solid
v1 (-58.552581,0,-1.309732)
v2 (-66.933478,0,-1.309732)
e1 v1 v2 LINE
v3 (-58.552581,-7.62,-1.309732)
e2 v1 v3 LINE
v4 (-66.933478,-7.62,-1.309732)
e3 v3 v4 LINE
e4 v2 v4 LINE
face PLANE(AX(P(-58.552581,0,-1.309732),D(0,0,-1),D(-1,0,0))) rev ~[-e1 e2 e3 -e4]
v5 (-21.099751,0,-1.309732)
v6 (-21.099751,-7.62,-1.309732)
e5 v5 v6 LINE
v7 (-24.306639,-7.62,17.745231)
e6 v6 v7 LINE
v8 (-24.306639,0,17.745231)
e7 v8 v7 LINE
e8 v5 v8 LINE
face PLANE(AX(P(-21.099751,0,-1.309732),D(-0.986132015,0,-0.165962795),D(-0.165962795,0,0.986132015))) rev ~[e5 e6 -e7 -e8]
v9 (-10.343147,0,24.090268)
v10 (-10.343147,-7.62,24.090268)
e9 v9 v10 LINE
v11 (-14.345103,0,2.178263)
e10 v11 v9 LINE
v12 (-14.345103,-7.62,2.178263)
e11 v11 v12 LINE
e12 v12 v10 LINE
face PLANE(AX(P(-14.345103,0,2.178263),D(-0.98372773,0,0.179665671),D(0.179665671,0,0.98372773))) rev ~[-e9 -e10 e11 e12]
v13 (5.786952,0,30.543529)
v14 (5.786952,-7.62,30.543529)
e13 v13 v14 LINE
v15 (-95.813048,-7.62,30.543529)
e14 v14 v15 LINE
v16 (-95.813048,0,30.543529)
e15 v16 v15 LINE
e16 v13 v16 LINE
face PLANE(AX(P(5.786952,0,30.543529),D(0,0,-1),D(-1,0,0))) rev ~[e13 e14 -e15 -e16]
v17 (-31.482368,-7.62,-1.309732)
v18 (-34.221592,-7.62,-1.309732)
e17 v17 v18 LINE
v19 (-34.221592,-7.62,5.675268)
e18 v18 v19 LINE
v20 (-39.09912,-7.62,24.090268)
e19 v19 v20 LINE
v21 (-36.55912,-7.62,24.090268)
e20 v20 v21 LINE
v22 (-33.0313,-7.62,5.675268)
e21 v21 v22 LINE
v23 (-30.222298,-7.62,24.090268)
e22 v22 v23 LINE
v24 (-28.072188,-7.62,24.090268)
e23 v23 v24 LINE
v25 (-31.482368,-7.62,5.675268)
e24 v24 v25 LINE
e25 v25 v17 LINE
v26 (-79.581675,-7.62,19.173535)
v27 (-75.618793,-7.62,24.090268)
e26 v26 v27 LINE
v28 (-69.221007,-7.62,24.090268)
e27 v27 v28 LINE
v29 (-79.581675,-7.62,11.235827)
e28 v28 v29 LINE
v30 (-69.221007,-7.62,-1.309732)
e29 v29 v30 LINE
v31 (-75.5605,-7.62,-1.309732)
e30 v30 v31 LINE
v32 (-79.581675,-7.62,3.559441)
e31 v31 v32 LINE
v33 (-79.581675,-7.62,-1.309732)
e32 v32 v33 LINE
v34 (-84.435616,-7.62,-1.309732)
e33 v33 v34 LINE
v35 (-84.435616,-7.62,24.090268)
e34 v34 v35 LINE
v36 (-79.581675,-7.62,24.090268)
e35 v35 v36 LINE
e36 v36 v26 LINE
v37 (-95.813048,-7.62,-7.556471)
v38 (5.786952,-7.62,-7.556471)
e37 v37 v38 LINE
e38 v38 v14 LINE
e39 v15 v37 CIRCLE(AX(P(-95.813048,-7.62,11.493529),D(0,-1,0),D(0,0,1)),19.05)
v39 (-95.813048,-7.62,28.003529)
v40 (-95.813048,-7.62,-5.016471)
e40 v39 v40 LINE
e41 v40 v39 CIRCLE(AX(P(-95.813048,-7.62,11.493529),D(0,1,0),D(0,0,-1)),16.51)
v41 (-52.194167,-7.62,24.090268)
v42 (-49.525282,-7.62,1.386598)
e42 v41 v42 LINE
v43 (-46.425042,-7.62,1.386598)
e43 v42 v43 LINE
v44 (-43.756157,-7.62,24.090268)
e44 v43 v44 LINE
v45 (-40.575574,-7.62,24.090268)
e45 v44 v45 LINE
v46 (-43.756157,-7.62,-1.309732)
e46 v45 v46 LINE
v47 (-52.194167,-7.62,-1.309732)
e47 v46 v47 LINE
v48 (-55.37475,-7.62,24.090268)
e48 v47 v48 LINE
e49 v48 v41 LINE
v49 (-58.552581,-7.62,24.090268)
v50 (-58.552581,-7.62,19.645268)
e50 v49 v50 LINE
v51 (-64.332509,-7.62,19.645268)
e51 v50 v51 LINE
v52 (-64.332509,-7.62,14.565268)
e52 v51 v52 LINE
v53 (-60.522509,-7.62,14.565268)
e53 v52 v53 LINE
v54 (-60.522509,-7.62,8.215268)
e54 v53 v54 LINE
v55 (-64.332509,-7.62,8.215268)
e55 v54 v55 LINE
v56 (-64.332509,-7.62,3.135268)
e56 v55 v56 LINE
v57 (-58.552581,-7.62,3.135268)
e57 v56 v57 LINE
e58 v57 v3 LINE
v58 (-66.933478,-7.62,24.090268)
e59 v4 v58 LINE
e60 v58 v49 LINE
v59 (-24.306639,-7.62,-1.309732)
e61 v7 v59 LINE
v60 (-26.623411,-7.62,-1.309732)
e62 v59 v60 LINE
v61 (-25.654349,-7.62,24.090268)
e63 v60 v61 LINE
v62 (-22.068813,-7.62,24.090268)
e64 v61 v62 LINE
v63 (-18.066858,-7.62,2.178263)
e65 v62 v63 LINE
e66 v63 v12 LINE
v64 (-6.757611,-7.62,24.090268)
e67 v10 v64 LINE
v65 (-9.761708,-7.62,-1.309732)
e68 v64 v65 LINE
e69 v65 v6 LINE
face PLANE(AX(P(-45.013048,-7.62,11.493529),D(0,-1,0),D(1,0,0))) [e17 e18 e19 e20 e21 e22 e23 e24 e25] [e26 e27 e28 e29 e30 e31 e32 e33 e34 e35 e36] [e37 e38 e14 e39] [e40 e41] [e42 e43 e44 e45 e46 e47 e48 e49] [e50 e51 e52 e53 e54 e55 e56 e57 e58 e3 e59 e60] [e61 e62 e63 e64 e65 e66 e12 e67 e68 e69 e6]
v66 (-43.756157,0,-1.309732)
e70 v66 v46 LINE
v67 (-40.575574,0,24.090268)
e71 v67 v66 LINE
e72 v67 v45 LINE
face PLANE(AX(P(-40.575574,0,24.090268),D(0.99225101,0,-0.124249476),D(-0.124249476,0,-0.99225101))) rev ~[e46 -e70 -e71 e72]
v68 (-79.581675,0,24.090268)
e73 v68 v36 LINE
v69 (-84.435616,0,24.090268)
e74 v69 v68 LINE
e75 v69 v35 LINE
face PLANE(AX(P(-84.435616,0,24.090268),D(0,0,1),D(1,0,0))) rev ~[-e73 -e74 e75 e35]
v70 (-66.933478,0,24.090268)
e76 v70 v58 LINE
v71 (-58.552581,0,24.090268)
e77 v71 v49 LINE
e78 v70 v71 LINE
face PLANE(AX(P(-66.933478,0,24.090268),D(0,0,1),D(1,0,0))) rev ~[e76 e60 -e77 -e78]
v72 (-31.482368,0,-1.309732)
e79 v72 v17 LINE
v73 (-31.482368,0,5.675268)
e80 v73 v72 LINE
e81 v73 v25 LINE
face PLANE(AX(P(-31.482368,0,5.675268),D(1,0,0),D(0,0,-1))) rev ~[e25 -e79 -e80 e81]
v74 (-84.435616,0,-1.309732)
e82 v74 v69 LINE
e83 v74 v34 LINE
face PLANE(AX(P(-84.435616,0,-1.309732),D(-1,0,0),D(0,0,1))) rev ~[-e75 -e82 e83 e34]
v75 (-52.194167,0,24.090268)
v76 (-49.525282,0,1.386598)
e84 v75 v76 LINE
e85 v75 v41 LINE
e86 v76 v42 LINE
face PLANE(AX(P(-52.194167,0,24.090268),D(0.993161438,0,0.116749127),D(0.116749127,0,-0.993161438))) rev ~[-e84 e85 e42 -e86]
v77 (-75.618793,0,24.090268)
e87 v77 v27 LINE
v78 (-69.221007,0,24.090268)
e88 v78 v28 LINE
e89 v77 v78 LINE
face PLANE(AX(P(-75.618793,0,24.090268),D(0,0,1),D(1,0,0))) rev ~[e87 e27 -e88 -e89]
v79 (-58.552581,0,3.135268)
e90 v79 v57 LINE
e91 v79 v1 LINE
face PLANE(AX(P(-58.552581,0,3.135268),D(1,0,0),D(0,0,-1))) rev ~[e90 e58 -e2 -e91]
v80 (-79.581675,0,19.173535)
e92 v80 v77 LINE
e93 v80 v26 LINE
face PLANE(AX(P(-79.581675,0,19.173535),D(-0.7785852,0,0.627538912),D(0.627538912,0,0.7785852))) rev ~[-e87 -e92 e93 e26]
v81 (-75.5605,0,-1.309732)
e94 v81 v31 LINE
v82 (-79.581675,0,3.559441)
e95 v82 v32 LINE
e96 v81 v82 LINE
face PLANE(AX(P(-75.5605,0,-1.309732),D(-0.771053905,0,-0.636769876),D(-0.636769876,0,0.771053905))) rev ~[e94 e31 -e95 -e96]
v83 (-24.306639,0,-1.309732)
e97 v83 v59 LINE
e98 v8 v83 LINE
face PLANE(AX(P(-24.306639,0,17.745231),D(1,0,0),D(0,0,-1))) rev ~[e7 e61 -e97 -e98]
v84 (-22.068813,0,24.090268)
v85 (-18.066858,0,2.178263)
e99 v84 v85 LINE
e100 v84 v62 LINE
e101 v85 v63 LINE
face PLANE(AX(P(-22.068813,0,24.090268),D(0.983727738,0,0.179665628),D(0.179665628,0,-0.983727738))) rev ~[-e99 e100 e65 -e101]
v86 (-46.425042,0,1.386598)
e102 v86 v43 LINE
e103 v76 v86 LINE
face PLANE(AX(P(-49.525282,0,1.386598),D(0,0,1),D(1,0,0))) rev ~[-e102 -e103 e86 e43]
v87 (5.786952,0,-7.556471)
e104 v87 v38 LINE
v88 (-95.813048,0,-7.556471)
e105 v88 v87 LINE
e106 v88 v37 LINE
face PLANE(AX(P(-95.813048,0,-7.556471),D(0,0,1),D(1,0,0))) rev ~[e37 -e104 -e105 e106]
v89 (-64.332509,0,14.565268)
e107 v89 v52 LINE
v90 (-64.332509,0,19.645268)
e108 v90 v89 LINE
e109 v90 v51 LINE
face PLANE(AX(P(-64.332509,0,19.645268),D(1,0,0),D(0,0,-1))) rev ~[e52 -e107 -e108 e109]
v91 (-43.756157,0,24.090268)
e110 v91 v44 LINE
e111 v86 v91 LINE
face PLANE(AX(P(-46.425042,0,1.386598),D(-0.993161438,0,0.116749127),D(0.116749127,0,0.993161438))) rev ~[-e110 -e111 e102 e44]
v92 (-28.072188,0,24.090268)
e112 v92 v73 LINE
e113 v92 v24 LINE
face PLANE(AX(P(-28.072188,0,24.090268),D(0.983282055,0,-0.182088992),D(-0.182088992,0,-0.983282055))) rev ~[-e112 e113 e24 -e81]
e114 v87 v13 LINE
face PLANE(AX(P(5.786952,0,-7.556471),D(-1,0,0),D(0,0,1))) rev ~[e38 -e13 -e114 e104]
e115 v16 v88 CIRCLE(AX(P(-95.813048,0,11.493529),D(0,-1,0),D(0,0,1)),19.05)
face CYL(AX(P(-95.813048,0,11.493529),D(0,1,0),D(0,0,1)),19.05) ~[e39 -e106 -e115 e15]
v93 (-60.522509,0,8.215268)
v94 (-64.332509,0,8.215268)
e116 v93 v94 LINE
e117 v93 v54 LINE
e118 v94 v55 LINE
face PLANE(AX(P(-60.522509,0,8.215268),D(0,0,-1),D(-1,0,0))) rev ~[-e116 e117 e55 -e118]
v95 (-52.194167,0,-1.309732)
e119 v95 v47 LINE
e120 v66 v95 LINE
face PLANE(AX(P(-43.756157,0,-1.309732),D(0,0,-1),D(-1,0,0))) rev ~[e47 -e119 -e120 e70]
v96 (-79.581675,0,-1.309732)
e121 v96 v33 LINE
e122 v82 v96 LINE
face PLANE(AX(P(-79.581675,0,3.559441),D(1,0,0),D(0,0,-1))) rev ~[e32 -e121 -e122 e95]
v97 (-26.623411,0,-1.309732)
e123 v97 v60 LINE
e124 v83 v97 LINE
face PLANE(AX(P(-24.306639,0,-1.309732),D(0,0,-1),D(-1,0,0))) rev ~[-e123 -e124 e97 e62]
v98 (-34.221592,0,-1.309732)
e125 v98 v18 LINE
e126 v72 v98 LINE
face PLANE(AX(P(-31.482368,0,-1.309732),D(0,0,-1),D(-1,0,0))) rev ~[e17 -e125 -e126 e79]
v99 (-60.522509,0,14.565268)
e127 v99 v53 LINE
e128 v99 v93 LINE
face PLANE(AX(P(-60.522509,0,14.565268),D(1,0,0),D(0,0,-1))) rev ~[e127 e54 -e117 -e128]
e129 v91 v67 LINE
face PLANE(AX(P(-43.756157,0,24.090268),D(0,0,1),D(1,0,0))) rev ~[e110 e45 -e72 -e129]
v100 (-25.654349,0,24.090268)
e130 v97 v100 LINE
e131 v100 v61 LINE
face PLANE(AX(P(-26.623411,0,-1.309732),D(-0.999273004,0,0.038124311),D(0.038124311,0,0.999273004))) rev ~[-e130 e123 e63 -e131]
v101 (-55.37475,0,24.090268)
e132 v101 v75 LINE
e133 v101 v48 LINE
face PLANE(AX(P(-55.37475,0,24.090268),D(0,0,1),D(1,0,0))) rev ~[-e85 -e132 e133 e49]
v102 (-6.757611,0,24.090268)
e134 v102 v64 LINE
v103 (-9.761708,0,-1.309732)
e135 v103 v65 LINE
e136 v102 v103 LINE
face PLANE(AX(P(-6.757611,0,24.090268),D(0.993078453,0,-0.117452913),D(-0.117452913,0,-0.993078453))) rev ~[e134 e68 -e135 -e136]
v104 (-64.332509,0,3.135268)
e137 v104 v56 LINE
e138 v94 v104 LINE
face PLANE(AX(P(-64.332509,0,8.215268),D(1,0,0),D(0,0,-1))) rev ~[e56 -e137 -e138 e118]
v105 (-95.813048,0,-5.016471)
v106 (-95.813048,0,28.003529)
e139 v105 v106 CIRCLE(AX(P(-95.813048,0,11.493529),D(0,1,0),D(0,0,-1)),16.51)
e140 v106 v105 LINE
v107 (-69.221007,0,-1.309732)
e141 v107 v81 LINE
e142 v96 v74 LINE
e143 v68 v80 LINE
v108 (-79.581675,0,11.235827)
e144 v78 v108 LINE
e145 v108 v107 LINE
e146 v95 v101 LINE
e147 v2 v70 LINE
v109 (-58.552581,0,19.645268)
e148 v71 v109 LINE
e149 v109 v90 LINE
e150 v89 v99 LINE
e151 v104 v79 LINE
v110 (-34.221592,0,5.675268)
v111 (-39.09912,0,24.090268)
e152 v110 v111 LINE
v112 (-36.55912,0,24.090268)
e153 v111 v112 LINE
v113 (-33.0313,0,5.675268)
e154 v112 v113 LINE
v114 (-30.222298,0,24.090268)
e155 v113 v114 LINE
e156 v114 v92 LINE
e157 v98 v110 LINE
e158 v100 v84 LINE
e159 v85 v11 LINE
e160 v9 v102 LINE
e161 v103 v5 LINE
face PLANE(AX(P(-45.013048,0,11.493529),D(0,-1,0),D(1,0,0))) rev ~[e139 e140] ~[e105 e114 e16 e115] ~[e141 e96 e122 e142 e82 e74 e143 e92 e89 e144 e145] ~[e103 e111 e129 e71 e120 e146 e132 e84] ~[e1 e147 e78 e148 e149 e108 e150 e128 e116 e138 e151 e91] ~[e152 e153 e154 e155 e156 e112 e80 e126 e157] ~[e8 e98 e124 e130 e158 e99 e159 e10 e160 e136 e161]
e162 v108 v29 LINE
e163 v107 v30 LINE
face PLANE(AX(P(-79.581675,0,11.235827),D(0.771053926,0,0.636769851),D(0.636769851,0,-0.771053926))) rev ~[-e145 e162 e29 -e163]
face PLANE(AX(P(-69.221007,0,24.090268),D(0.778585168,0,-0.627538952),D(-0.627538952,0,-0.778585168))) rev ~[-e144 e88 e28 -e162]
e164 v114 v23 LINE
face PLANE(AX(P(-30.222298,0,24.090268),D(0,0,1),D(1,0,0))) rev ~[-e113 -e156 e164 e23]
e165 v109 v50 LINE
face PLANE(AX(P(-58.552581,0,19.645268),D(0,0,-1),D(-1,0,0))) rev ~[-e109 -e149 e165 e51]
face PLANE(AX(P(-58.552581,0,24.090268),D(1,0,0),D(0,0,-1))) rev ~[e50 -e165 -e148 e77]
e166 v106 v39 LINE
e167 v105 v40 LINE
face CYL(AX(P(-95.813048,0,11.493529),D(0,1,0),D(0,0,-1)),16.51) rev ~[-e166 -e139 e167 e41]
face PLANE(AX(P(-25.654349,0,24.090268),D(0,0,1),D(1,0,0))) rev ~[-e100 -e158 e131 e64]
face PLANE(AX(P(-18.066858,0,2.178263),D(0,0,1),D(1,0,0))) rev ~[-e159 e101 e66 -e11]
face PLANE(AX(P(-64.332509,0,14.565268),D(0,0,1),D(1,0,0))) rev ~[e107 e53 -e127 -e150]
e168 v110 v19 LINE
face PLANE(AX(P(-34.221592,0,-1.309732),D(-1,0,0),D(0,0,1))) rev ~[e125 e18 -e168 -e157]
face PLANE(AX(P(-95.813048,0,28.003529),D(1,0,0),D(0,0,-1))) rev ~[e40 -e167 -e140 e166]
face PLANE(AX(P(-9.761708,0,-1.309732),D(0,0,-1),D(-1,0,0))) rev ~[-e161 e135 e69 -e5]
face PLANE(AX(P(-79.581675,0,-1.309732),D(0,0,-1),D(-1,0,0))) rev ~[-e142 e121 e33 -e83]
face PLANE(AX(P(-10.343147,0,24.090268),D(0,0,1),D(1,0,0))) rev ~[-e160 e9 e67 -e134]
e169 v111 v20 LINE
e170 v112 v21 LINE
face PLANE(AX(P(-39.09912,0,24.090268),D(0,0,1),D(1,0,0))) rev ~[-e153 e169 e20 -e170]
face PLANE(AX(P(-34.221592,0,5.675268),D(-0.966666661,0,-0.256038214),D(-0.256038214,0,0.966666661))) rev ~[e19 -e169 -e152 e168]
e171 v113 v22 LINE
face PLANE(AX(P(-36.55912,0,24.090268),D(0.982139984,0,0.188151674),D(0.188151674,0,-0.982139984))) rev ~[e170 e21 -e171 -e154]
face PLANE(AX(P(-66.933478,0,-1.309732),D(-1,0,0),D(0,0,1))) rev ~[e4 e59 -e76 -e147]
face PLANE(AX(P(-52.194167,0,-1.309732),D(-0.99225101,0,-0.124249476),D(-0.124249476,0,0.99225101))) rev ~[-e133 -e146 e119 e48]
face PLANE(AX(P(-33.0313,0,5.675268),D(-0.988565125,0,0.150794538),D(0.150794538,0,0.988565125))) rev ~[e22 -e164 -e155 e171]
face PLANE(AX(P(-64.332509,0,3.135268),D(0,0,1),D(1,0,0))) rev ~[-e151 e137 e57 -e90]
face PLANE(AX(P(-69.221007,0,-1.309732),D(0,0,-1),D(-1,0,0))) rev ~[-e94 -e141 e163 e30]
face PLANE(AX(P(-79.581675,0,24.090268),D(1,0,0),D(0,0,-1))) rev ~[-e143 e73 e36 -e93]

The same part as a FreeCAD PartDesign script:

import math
import FreeCAD as App
import Part
import Sketcher
from FreeCAD import Vector
Q = App.Units.Quantity


def add_polygon(sketch, points):
    """Adds a closed chain of lines whose ends are joined by coincident constraints."""
    first, n = sketch.GeometryCount, len(points)
    for a, b in zip(points, points[1:] + points[:1]):
        sketch.addGeometry(Part.LineSegment(App.Vector(*a, 0), App.Vector(*b, 0)), False)
    for i in range(n):
        sketch.addConstraint(Sketcher.Constraint("Coincident", first + i, 2, first + (i + 1) % n, 1))

doc = App.newDocument("Part")
body = doc.addObject("PartDesign::Body", "Body")

sketch1 = body.newObject("Sketcher::SketchObject", "Sketch")
sketch1.AttachmentSupport = (doc.getObject("XZ_Plane"), [""])
sketch1.MapMode = "FlatFace"
sketch1.addGeometry(Part.LineSegment(Vector(-95.8, -7.6, 0), Vector(5.8, -7.6, 0)), False)
sketch1.addGeometry(Part.LineSegment(Vector(5.8, -7.6, 0), Vector(5.8, 30.5, 0)), False)
sketch1.addGeometry(Part.LineSegment(Vector(5.8, 30.5, 0), Vector(-95.8, 30.5, 0)), False)
sketch1.addGeometry(Part.ArcOfCircle(Part.Circle(Vector(-95.8, 11.5, 0), Vector(0, 0, 1), 19.1), math.radians(90), math.radians(270)), False)
sketch1.addGeometry(Part.LineSegment(Vector(-95.8, 28, 0), Vector(-95.8, -5, 0)), False)
sketch1.addGeometry(Part.ArcOfCircle(Part.Circle(Vector(-95.8, 11.5, 0), Vector(0, 0, 1), 16.5), math.radians(90), math.radians(270)), False)
add_polygon(sketch1, [(-84.4, 24.1), (-79.6, 24.1), (-79.6, 19.2), (-75.6, 24.1), (-69.2, 24.1), (-79.6, 11.2), (-69.2, -1.3), (-75.6, -1.3), (-79.6, 3.6), (-79.6, -1.3), (-84.4, -1.3)])
add_polygon(sketch1, [(-66.9, 24.1), (-58.6, 24.1), (-58.6, 19.6), (-64.3, 19.6), (-64.3, 14.6), (-60.5, 14.6), (-60.5, 8.2), (-64.3, 8.2), (-64.3, 3.1), (-58.6, 3.1), (-58.6, -1.3), (-66.9, -1.3)])
add_polygon(sketch1, [(-55.4, 24.1), (-52.2, 24.1), (-49.5, 1.4), (-46.4, 1.4), (-43.8, 24.1), (-40.6, 24.1), (-43.8, -1.3), (-52.2, -1.3)])
add_polygon(sketch1, [(-39.1, 24.1), (-36.6, 24.1), (-33, 5.7), (-30.2, 24.1), (-28.1, 24.1), (-31.5, 5.7), (-31.5, -1.3), (-34.2, -1.3), (-34.2, 5.7)])
add_polygon(sketch1, [(-25.7, 24.1), (-22.1, 24.1), (-18.1, 2.2), (-14.3, 2.2), (-10.3, 24.1), (-6.8, 24.1), (-9.8, -1.3), (-21.1, -1.3), (-24.3, 17.7), (-24.3, -1.3), (-26.6, -1.3)])
sketch1.addConstraint(Sketcher.Constraint("Coincident", 0, 2, 1, 1))
sketch1.addConstraint(Sketcher.Constraint("Coincident", 1, 2, 2, 1))
sketch1.addConstraint(Sketcher.Constraint("Tangent", 2, 2, 3, 1))
sketch1.addConstraint(Sketcher.Constraint("Tangent", 3, 2, 0, 1))
sketch1.addConstraint(Sketcher.Constraint("Coincident", 4, 1, 5, 1))
sketch1.addConstraint(Sketcher.Constraint("Coincident", 5, 2, 4, 2))
sketch1.addConstraint(Sketcher.Constraint("Horizontal", 0))
sketch1.addConstraint(Sketcher.Constraint("Vertical", 1))
sketch1.addConstraint(Sketcher.Constraint("Horizontal", 2))
sketch1.addConstraint(Sketcher.Constraint("Vertical", 4))
sketch1.addConstraint(Sketcher.Constraint("Horizontal", 6))
sketch1.addConstraint(Sketcher.Constraint("Vertical", 7))
sketch1.addConstraint(Sketcher.Constraint("Horizontal", 9))
sketch1.addConstraint(Sketcher.Constraint("Horizontal", 12))
sketch1.addConstraint(Sketcher.Constraint("Vertical", 14))
sketch1.addConstraint(Sketcher.Constraint("Horizontal", 15))
sketch1.addConstraint(Sketcher.Constraint("Vertical", 16))
sketch1.addConstraint(Sketcher.Constraint("Horizontal", 17))
sketch1.addConstraint(Sketcher.Constraint("Vertical", 18))
sketch1.addConstraint(Sketcher.Constraint("Horizontal", 19))
sketch1.addConstraint(Sketcher.Constraint("Vertical", 20))
sketch1.addConstraint(Sketcher.Constraint("Horizontal", 21))
sketch1.addConstraint(Sketcher.Constraint("Vertical", 22))
sketch1.addConstraint(Sketcher.Constraint("Horizontal", 23))
sketch1.addConstraint(Sketcher.Constraint("Vertical", 24))
sketch1.addConstraint(Sketcher.Constraint("Horizontal", 25))
sketch1.addConstraint(Sketcher.Constraint("Vertical", 26))
sketch1.addConstraint(Sketcher.Constraint("Horizontal", 27))
sketch1.addConstraint(Sketcher.Constraint("Vertical", 28))
sketch1.addConstraint(Sketcher.Constraint("Horizontal", 29))
sketch1.addConstraint(Sketcher.Constraint("Horizontal", 31))
sketch1.addConstraint(Sketcher.Constraint("Horizontal", 33))
sketch1.addConstraint(Sketcher.Constraint("Horizontal", 35))
sketch1.addConstraint(Sketcher.Constraint("Horizontal", 37))
sketch1.addConstraint(Sketcher.Constraint("Horizontal", 40))
sketch1.addConstraint(Sketcher.Constraint("Vertical", 42))
sketch1.addConstraint(Sketcher.Constraint("Horizontal", 43))
sketch1.addConstraint(Sketcher.Constraint("Vertical", 44))
sketch1.addConstraint(Sketcher.Constraint("Horizontal", 46))
sketch1.addConstraint(Sketcher.Constraint("Horizontal", 48))
sketch1.addConstraint(Sketcher.Constraint("Horizontal", 50))
sketch1.addConstraint(Sketcher.Constraint("Horizontal", 52))
sketch1.addConstraint(Sketcher.Constraint("Vertical", 54))
sketch1.addConstraint(Sketcher.Constraint("Horizontal", 55))
sketch1.addConstraint(Sketcher.Constraint("Coincident", 5, 3, 3, 3))
sketch1.addConstraint(Sketcher.Constraint("Parallel", 8, 10))
sketch1.addConstraint(Sketcher.Constraint("Parallel", 11, 13))
sketch1.addConstraint(Sketcher.Constraint("Horizontal", 6, 2, 8, 2))
sketch1.addConstraint(Sketcher.Constraint("Horizontal", 12, 2, 14, 2))
sketch1.addConstraint(Sketcher.Constraint("Horizontal", 16, 2, 17, 2))
sketch1.addConstraint(Sketcher.Constraint("Horizontal", 15, 2, 26, 2))
sketch1.addConstraint(Sketcher.Constraint("Horizontal", 28, 2, 29, 2))
sketch1.addConstraint(Sketcher.Constraint("Horizontal", 29, 2, 32, 2))
sketch1.addConstraint(Sketcher.Constraint("Horizontal", 27, 2, 34, 2))
sketch1.addConstraint(Sketcher.Constraint("Horizontal", 36, 2, 37, 2))
sketch1.addConstraint(Sketcher.Constraint("Horizontal", 37, 2, 39, 2))
sketch1.addConstraint(Sketcher.Constraint("Horizontal", 38, 2, 41, 2))
sketch1.addConstraint(Sketcher.Constraint("Horizontal", 35, 2, 42, 2))
sketch1.addConstraint(Sketcher.Constraint("Horizontal", 41, 2, 44, 2))
sketch1.addConstraint(Sketcher.Constraint("Horizontal", 45, 2, 46, 2))
sketch1.addConstraint(Sketcher.Constraint("Horizontal", 46, 2, 49, 2))
sketch1.addConstraint(Sketcher.Constraint("Horizontal", 43, 2, 51, 2))
sketch1.addConstraint(Sketcher.Constraint("Horizontal", 52, 2, 54, 2))
sketch1.addConstraint(Sketcher.Constraint("Vertical", 3, 2, 4, 1))
sketch1.addConstraint(Sketcher.Constraint("Vertical", 7, 2, 10, 2))
sketch1.addConstraint(Sketcher.Constraint("Vertical", 9, 2, 11, 2))
sketch1.addConstraint(Sketcher.Constraint("Vertical", 10, 2, 13, 2))
sketch1.addConstraint(Sketcher.Constraint("Vertical", 20, 2, 23, 2))
sketch1.addConstraint(Sketcher.Constraint("Vertical", 18, 2, 25, 2))
sketch1.addConstraint(Sketcher.Constraint("Vertical", 32, 2, 34, 2))
sketch1.addConstraint(Sketcher.Constraint("Vertical", 29, 2, 35, 2))
sketch1.addConstraint(Sketcher.Constraint("Equal", 29, 33))
sketch1.addConstraint(Sketcher.Constraint("Equal", 46, 50))
sketch1.addConstraint(Sketcher.Constraint("Equal", 20, 24))
sketch1.addConstraint(Sketcher.Constraint("Equal", 18, 26))
sketch1.addConstraint(Sketcher.Constraint("Equal", 8, 13))
sketch1.addConstraint(Sketcher.Constraint("Equal", 30, 32))
sketch1.addConstraint(Sketcher.Constraint("Equal", 47, 49))
sketch1.addConstraint(Sketcher.Constraint("DistanceX", 0, 1, 0, 2, Q("4 in")))
sketch1.addConstraint(Sketcher.Constraint("DistanceY", 16, 1, 16, 2, Q("1 in")))
sketch1.addConstraint(Sketcher.Constraint("Radius", 3, Q("0.75 in")))
sketch1.addConstraint(Sketcher.Constraint("Radius", 5, Q("0.65 in")))
sketch1.addConstraint(Sketcher.Constraint("DistanceX", 37, 1, 37, 2, Q("0.1 in")))
sketch1.addConstraint(Sketcher.Constraint("DistanceY", 20, 2, 20, 1, Q("0.2 in")))
sketch1.addConstraint(Sketcher.Constraint("Distance", 30, Q("0.9 in")))
sketch1.addConstraint(Sketcher.Constraint("DistanceX", 21, 1, 21, 2, Q("0.15 in")))
sketch1.addConstraint(Sketcher.Constraint("DistanceY", 22, 2, 22, 1, Q("0.25 in")))
sketch1.addConstraint(Sketcher.Constraint("Distance", 10, Q("0.65 in")))
sketch1.addConstraint(Sketcher.Constraint("Distance", 45, Q("0.75 in")))
sketch1.addConstraint(Sketcher.Constraint("DistanceY", 42, 2, 42, 1, Q("0.275 in")))
sketch1.addConstraint(Sketcher.Constraint("DistanceX", 6, 1, 6, 2, Q("0.1911 in")))
sketch1.addConstraint(Sketcher.Constraint("DistanceX", 39, 2, 53, 2, Q("0.2329 in")))
sketch1.addConstraint(Sketcher.Constraint("DistanceX", 31, 1, 31, 2, 3.10024))
sketch1.addConstraint(Sketcher.Constraint("DistanceX", 35, 2, 35, 1, 8.43801))
sketch1.addConstraint(Sketcher.Constraint("DistanceX", 40, 1, 40, 2, 2.15011))
sketch1.addConstraint(Sketcher.Constraint("DistanceX", 12, 2, -1, 1, 75.5605))
sketch1.addConstraint(Sketcher.Constraint("DistanceX", 38, 2, -1, 1, 33.0313))
sketch1.addConstraint(Sketcher.Constraint("DistanceX", 9, 2, 21, 2, 8.698498))
sketch1.addConstraint(Sketcher.Constraint("DistanceX", 25, 2, 30, 2, 9.027299))
sketch1.addConstraint(Sketcher.Constraint("DistanceX", 49, 2, 1, 2, 16.130099))
sketch1.addConstraint(Sketcher.Constraint("DistanceX", 46, 2, 50, 2, 15.311202))
sketch1.addConstraint(Sketcher.Constraint("Distance", 8, 6.314958))
sketch1.addConstraint(Sketcher.Constraint("Distance", 34, 25.598361))
sketch1.addConstraint(Sketcher.Constraint("Distance", 39, 18.628009))
sketch1.addConstraint(Sketcher.Constraint("Distance", 47, 22.274461))
sketch1.addConstraint(Sketcher.Constraint("Distance", 56, 25.418479))
sketch1.addConstraint(Sketcher.Constraint("DistanceX", 9, 1, 9, 2, 6.397786))
sketch1.addConstraint(Sketcher.Constraint("DistanceX", 17, 1, 17, 2, 8.380897))
sketch1.addConstraint(Sketcher.Constraint("DistanceX", 19, 2, 19, 1, 5.779928))
sketch1.addConstraint(Sketcher.Constraint("DistanceX", 43, 2, 43, 1, 2.739224))
sketch1.addConstraint(Sketcher.Constraint("DistanceX", 46, 1, 46, 2, 3.585536))
sketch1.addConstraint(Sketcher.Constraint("DistanceX", 48, 1, 48, 2, 3.721755))
sketch1.addConstraint(Sketcher.Constraint("DistanceX", 52, 2, 52, 1, 11.338043))
sketch1.addConstraint(Sketcher.Constraint("DistanceX", 55, 2, 55, 1, 2.316772))
sketch1.addConstraint(Sketcher.Constraint("DistanceY", 54, 2, 54, 1, 19.054963))
sketch1.addConstraint(Sketcher.Constraint("DistanceY", -1, 1, 3, 3, 11.493529))
sketch1.addConstraint(Sketcher.Constraint("DistanceY", 11, 2, -1, 1, 1.309732))
sketch1.addConstraint(Sketcher.Constraint("DistanceX", 37, 2, -1, 1, 36.55912))
sketch1.addConstraint(Sketcher.Constraint("DistanceX", 52, 2, -1, 1, 21.099751))
pad1 = body.newObject("PartDesign::Pad", "Pad")
pad1.Profile = sketch1
pad1.Length = Q("0.3 in")

doc.recompute()
